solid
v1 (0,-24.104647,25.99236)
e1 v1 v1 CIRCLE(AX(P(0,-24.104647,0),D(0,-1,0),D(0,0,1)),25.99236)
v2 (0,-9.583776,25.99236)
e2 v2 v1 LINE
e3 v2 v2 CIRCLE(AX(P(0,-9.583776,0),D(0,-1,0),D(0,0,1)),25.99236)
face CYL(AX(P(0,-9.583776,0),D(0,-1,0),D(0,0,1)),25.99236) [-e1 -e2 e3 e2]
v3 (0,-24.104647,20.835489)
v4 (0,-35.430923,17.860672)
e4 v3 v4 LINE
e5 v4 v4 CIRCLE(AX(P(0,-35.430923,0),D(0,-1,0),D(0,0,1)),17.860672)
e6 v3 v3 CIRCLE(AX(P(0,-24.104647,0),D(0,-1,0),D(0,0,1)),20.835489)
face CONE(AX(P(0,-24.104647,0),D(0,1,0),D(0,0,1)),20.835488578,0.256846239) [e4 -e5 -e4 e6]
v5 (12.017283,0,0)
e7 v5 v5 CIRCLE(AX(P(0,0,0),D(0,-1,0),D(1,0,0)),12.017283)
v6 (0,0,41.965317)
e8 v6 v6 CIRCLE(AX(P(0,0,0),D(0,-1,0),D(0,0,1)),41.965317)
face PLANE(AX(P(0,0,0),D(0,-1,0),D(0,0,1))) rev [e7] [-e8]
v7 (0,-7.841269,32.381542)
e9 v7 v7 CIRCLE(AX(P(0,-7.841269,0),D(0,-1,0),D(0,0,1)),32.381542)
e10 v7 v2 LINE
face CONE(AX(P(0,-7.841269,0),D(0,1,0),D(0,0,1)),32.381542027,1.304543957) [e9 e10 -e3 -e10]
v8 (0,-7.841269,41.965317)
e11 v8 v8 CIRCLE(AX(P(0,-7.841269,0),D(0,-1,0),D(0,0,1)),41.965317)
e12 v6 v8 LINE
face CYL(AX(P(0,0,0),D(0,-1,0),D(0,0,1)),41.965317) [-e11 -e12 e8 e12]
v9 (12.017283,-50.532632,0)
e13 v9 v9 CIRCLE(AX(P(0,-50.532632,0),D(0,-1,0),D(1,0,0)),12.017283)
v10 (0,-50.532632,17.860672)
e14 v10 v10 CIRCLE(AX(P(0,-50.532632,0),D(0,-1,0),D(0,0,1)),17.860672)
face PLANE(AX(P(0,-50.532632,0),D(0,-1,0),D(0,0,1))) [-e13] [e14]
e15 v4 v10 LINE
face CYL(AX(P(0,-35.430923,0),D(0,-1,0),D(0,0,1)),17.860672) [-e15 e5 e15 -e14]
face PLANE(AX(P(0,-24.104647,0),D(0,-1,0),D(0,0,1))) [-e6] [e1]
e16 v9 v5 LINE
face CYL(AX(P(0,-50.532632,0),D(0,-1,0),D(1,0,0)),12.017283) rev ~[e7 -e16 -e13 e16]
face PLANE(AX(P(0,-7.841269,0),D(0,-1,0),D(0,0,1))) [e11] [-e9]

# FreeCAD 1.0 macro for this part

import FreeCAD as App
import Part
import Sketcher

V = App.Vector
Q = App.Units.Quantity

doc = App.newDocument("Part")
body = doc.addObject("PartDesign::Body", "Body")

# Sketch on YZ plane
sketch1 = doc.addObject("Sketcher::SketchObject", "Sketch")
body.addObject(sketch1)
sketch1.AttachmentSupport = (doc.YZ_Plane, [""])
sketch1.MapMode = "FlatFace"
sketch1.addGeometry([
    Part.LineSegment(V(0, 11.181071, 0), V(0, 41.965317, 0)),  # 0
    Part.LineSegment(V(0, 41.965317, 0), V(-7.841269, 41.965317, 0)),  # 1
    Part.LineSegment(V(-7.841269, 41.965317, 0), V(-7.841269, 32.381542, 0)),  # 2
    Part.LineSegment(V(-7.841269, 32.381542, 0), V(-9.583776, 25.99236, 0)),  # 3
    Part.LineSegment(V(-9.583776, 25.99236, 0), V(-24.104647, 25.99236, 0)),  # 4
    Part.LineSegment(V(-24.104647, 25.99236, 0), V(-24.104647, 20.835489, 0)),  # 5
    Part.LineSegment(V(-24.104647, 20.835489, 0), V(-35.430923, 17.860672, 0)),  # 6
    Part.LineSegment(V(-35.430923, 17.860672, 0), V(-50.532632, 17.860672, 0)),  # 7
    Part.LineSegment(V(-50.532632, 17.860672, 0), V(-50.532632, 11.181071, 0)),  # 8
    Part.LineSegment(V(-50.532632, 11.181071, 0), V(-50.532632, 0, 0)),  # 9
    Part.LineSegment(V(-50.532632, 0, 0), V(0, 0, 0)),  # 10
    Part.LineSegment(V(0, 0, 0), V(0, 11.181071, 0)),  # 11
], False)
sketch1.addConstraint([
    Sketcher.Constraint("Coincident", 0, 2, 1, 1),
    Sketcher.Constraint("Coincident", 1, 2, 2, 1),
    Sketcher.Constraint("Coincident", 2, 2, 3, 1),
    Sketcher.Constraint("Coincident", 3, 2, 4, 1),
    Sketcher.Constraint("Coincident", 4, 2, 5, 1),
    Sketcher.Constraint("Coincident", 5, 2, 6, 1),
    Sketcher.Constraint("Coincident", 6, 2, 7, 1),
    Sketcher.Constraint("Coincident", 7, 2, 8, 1),
    Sketcher.Constraint("Coincident", 8, 2, 9, 1),
    Sketcher.Constraint("Coincident", 9, 2, 10, 1),
    Sketcher.Constraint("Coincident", 10, 2, 11, 1),
    Sketcher.Constraint("Coincident", 11, 2, 0, 1),
    Sketcher.Constraint("Vertical", 0),
    Sketcher.Constraint("Horizontal", 1),
    Sketcher.Constraint("Vertical", 2),
    Sketcher.Constraint("Horizontal", 4),
    Sketcher.Constraint("Vertical", 5),
    Sketcher.Constraint("Horizontal", 7),
    Sketcher.Constraint("Vertical", 8),
    Sketcher.Constraint("Vertical", 9),
    Sketcher.Constraint("Horizontal", 10),
    Sketcher.Constraint("Vertical", 11),
    Sketcher.Constraint("Coincident", 10, 2, -1, 1),
    Sketcher.Constraint("Horizontal", 8, 2, 11, 2),
    Sketcher.Constraint("DistanceY", 8, 2, 8, 1, Q("6.6796 mm")),
    Sketcher.Constraint("DistanceX", 1, 2, 1, 1, Q("7.841269 mm")),
    Sketcher.Constraint("DistanceX", 4, 2, 4, 1, Q("14.520871 mm")),
    Sketcher.Constraint("DistanceX", 7, 2, 7, 1, Q("15.101708 mm")),
    Sketcher.Constraint("DistanceX", 10, 1, 10, 2, Q("50.532632 mm")),
    Sketcher.Constraint("DistanceY", 5, 2, 5, 1, Q("5.156871 mm")),
    Sketcher.Constraint("DistanceY", 9, 2, 9, 1, Q("11.181071 mm")),
    Sketcher.Constraint("DistanceY", 0, 1, 0, 2, Q("30.784246 mm")),
    Sketcher.Constraint("DistanceY", 2, 2, 2, 1, Q("9.583775 mm")),
    Sketcher.Constraint("DistanceY", -1, 1, 3, 2, Q("25.99236 mm")),
    Sketcher.Constraint("Distance", 3, Q("6.622535 mm")),
])
revolution = doc.addObject("PartDesign::Revolution", "Revolution")
body.addObject(revolution)
revolution.Profile = sketch1
revolution.ReferenceAxis = (sketch1, ["H_Axis"])
revolution.Angle = 360

# Sketch on XZ plane
sketch2 = doc.addObject("Sketcher::SketchObject", "Sketch001")
body.addObject(sketch2)
sketch2.AttachmentSupport = (doc.XZ_Plane, [""])
sketch2.MapMode = "FlatFace"
sketch2.AttachmentOffset = App.Placement(V(0, 0, 50.532632), App.Rotation())
sketch2.addGeometry(Part.Circle(V(0, 0, 0), V(0, 0, 1), 12.017283), False)
sketch2.addConstraint([
    Sketcher.Constraint("Coincident", 0, 3, -1, 1),
    Sketcher.Constraint("Diameter", 0, Q("24.034565 mm")),
])
pocket1 = doc.addObject("PartDesign::Pocket", "Pocket")
body.addObject(pocket1)
pocket1.Profile = sketch2
pocket1.Type = "ThroughAll"

doc.recompute()
